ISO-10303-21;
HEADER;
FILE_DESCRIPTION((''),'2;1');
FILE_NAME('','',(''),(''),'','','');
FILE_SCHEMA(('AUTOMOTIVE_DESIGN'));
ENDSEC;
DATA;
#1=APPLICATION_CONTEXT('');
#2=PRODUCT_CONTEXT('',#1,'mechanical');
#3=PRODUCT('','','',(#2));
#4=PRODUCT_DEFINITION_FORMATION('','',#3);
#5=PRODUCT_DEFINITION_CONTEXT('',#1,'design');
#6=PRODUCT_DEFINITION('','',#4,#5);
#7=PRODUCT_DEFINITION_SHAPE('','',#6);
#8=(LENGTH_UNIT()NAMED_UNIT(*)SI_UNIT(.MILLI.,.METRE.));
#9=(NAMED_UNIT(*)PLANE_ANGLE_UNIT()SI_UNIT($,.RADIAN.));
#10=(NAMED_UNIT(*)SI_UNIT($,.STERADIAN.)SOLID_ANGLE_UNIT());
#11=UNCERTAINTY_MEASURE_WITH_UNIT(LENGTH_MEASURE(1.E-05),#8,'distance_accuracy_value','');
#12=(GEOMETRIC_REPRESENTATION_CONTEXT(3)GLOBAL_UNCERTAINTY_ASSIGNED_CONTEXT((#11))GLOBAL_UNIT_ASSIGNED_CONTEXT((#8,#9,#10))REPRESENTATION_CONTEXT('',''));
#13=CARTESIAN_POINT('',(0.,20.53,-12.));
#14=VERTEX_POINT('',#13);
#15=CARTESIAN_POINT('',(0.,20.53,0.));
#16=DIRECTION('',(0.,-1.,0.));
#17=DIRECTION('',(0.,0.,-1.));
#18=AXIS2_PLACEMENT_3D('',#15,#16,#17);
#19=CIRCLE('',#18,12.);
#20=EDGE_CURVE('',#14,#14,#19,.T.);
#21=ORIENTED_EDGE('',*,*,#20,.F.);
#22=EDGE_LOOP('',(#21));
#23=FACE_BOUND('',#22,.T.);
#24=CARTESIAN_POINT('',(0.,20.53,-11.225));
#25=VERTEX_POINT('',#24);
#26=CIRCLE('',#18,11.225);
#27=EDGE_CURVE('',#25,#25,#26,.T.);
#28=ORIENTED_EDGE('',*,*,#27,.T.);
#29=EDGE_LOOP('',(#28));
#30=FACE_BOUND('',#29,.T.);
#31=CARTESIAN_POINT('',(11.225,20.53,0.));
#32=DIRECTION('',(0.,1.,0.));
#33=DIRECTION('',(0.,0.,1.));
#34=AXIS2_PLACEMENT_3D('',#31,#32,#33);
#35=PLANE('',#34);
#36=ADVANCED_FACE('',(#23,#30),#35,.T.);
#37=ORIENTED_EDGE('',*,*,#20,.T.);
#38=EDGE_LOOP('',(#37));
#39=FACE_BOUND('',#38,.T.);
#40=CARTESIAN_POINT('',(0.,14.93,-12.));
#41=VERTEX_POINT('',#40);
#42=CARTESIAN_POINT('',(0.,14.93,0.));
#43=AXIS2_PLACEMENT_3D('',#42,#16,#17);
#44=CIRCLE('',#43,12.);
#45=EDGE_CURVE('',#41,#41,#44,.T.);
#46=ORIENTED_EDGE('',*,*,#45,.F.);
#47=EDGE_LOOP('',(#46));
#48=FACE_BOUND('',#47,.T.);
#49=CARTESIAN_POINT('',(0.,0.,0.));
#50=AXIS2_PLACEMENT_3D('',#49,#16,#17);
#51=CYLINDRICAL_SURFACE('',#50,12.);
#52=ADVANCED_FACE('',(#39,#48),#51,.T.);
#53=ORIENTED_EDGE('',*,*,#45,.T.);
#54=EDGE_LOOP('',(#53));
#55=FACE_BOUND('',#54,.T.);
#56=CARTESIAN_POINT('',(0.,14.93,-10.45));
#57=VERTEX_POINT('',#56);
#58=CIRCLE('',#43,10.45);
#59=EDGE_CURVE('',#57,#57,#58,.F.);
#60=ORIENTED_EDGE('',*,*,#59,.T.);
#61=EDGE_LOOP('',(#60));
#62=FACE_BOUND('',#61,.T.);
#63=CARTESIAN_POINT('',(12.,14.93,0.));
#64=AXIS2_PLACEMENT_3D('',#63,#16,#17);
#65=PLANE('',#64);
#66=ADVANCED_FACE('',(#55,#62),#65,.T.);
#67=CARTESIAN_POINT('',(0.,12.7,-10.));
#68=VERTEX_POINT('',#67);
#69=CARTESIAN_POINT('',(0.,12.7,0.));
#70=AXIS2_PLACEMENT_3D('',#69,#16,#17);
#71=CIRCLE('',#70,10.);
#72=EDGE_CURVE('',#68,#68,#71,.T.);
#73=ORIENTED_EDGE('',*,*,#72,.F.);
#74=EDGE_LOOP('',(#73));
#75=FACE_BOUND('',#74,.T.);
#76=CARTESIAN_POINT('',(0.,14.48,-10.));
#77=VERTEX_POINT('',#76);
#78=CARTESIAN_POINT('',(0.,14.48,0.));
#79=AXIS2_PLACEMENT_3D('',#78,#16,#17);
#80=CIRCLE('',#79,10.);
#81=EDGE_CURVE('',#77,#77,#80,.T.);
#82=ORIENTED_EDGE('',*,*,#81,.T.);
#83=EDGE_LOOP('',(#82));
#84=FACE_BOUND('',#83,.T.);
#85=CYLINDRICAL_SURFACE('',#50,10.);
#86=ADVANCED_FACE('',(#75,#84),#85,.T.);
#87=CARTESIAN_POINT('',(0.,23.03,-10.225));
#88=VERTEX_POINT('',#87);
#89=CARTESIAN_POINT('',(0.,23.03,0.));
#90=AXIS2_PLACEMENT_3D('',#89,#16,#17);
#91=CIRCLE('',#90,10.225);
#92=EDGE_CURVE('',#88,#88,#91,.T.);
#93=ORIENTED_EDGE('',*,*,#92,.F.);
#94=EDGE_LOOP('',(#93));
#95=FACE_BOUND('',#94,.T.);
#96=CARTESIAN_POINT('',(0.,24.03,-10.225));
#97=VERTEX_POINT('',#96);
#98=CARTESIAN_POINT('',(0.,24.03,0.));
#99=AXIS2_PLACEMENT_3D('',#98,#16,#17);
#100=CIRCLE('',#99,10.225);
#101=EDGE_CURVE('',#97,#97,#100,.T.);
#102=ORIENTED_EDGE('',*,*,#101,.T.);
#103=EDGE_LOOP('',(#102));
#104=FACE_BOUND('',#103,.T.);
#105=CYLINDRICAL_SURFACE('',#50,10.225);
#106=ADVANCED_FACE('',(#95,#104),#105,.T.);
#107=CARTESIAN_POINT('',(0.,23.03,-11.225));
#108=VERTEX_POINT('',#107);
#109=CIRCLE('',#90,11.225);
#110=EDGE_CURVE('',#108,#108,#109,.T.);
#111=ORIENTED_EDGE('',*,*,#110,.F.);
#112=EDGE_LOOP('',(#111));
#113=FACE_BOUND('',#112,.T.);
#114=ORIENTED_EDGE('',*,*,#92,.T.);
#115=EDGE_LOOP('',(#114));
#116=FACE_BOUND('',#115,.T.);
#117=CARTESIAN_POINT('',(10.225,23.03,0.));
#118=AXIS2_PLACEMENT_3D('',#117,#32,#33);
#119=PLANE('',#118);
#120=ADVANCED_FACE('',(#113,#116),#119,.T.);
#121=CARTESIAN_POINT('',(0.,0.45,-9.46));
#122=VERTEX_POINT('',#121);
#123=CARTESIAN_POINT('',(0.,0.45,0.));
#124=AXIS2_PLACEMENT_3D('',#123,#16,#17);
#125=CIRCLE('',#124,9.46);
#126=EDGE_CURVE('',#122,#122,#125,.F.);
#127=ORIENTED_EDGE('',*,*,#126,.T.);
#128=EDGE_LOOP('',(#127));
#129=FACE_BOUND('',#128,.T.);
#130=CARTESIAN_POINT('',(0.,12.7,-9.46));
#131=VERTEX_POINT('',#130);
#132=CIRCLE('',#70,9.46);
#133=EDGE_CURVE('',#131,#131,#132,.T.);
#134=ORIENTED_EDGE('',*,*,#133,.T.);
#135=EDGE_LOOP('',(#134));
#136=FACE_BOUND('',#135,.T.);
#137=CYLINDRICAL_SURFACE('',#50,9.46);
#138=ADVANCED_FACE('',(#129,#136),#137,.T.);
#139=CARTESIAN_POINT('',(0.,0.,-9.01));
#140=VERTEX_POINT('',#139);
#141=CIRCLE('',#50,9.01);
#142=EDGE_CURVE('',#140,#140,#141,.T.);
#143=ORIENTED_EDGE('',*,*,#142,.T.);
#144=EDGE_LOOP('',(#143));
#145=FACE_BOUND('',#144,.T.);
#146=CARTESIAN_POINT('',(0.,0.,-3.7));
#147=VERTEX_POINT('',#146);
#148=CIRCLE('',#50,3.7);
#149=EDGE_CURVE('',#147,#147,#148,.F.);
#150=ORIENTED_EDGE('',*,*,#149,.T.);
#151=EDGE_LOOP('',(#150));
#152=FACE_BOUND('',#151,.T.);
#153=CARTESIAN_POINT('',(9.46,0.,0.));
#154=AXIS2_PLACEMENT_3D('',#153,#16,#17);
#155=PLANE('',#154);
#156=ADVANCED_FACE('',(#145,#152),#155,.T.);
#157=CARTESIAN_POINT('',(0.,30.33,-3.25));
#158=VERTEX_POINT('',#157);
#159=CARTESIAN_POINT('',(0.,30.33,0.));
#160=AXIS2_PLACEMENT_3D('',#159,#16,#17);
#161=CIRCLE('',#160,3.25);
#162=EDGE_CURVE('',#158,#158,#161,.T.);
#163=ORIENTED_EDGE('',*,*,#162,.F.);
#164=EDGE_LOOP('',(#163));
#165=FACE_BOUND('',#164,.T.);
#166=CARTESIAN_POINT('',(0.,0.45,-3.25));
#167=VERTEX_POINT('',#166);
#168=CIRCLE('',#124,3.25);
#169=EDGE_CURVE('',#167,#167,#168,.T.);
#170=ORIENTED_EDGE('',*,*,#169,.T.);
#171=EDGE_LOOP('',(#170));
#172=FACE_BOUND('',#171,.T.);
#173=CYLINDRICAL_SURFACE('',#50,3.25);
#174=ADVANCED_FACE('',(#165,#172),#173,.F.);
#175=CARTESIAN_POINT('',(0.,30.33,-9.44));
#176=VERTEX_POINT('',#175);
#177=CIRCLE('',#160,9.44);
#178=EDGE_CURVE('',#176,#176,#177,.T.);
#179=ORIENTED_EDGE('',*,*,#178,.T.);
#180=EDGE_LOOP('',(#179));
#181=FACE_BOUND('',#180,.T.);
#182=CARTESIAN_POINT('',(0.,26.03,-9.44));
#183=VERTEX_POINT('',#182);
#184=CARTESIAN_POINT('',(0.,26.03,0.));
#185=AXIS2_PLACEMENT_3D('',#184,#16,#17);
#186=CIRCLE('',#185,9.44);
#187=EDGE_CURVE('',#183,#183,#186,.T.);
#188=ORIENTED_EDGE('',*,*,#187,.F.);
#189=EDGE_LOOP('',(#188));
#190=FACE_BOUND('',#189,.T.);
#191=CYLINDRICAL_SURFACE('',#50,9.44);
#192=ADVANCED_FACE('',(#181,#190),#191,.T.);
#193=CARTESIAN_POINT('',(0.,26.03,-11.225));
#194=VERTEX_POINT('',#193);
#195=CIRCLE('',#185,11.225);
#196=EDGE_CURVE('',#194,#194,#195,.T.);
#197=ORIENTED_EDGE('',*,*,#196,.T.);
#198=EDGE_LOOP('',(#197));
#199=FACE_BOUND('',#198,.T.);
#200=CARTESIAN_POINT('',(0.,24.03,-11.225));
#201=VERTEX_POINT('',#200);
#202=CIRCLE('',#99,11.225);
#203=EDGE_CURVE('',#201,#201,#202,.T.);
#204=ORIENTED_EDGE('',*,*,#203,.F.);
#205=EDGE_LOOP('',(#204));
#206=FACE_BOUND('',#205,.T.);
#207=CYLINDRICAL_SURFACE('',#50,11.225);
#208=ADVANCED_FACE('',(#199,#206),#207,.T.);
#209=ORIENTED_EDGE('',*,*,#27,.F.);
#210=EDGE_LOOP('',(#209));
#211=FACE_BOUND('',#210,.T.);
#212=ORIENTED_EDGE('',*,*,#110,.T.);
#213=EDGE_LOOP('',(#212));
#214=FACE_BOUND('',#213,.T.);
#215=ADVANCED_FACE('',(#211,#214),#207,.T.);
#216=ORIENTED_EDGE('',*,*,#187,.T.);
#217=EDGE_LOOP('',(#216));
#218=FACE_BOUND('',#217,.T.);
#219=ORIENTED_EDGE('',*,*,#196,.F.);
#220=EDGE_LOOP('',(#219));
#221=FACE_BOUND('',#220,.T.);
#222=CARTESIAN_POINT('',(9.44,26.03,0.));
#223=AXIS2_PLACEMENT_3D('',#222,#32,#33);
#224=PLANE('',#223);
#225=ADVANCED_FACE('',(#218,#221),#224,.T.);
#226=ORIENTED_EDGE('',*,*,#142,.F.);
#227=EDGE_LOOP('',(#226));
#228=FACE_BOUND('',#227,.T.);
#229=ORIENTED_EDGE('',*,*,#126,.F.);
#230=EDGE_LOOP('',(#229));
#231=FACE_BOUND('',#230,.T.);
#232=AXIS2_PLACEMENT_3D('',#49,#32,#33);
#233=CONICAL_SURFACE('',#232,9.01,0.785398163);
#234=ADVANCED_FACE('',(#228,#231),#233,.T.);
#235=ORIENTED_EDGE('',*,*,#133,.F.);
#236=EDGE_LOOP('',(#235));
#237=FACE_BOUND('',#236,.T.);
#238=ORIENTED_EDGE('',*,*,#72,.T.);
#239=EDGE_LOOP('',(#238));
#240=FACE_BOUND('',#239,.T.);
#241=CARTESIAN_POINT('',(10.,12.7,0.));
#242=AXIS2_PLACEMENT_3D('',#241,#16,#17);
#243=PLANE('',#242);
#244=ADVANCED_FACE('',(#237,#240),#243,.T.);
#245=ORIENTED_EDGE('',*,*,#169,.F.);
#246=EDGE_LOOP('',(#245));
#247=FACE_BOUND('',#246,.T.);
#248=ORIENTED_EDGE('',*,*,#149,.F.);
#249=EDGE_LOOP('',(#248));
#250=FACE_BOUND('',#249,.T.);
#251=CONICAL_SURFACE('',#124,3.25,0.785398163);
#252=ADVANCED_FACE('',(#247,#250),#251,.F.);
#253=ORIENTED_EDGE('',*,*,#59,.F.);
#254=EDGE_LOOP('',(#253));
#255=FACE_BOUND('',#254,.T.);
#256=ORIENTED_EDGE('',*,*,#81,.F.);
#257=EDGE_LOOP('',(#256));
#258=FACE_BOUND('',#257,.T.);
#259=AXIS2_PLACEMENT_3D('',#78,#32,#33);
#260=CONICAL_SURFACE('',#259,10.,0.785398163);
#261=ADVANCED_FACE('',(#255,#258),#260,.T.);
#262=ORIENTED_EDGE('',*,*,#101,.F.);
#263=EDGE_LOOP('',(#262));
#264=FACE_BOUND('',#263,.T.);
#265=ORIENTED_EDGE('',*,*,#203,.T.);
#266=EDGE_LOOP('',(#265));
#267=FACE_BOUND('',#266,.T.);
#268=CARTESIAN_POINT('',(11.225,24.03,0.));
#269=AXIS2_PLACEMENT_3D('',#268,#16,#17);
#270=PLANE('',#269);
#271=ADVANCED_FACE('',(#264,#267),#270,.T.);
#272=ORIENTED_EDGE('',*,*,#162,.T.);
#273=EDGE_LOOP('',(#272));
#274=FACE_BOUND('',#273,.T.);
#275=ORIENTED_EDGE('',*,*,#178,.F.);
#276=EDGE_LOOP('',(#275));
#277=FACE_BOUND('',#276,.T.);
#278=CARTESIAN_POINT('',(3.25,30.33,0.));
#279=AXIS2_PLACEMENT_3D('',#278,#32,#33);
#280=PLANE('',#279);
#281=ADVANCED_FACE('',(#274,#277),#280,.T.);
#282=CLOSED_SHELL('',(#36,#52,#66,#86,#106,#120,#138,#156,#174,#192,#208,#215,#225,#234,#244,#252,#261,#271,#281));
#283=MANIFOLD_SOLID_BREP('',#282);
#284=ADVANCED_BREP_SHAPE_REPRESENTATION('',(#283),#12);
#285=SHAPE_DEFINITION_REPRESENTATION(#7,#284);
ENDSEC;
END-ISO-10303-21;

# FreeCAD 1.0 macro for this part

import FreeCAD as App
import Part
import Sketcher
from FreeCAD import Vector


def edges_at(feature, points):
    """Names of the edges that pass closest to the given points."""
    edges = feature.Shape.Edges
    near = lambda p: min(range(len(edges)), key=lambda i: edges[i].distToShape(Part.Vertex(*p))[0])
    return sorted({f"Edge{near(p) + 1}" for p in points})

doc = App.newDocument("Part")
body = doc.addObject("PartDesign::Body", "Body")

# Sketch on XY plane
sketch1 = body.newObject("Sketcher::SketchObject", "Sketch")
sketch1.AttachmentSupport = (doc.getObject("XY_Plane"), [""])
sketch1.MapMode = "FlatFace"
sketch1.addGeometry(Part.LineSegment(Vector(3.2, 30.3, 0), Vector(3.2, 0, 0)), False)
sketch1.addGeometry(Part.LineSegment(Vector(3.2, 0, 0), Vector(9.5, 0, 0)), False)
sketch1.addGeometry(Part.LineSegment(Vector(9.5, 0, 0), Vector(9.5, 12.7, 0)), False)
sketch1.addGeometry(Part.LineSegment(Vector(9.5, 12.7, 0), Vector(10, 12.7, 0)), False)
sketch1.addGeometry(Part.LineSegment(Vector(10, 12.7, 0), Vector(10, 14.9, 0)), False)
sketch1.addGeometry(Part.LineSegment(Vector(10, 14.9, 0), Vector(12, 14.9, 0)), False)
sketch1.addGeometry(Part.LineSegment(Vector(12, 14.9, 0), Vector(12, 20.5, 0)), False)
sketch1.addGeometry(Part.LineSegment(Vector(12, 20.5, 0), Vector(11.2, 20.5, 0)), False)
sketch1.addGeometry(Part.LineSegment(Vector(11.2, 20.5, 0), Vector(11.2, 23, 0)), False)
sketch1.addGeometry(Part.LineSegment(Vector(11.2, 23, 0), Vector(10.2, 23, 0)), False)
sketch1.addGeometry(Part.LineSegment(Vector(10.2, 23, 0), Vector(10.2, 24, 0)), False)
sketch1.addGeometry(Part.LineSegment(Vector(10.2, 24, 0), Vector(11.2, 24, 0)), False)
sketch1.addGeometry(Part.LineSegment(Vector(11.2, 24, 0), Vector(11.2, 26, 0)), False)
sketch1.addGeometry(Part.LineSegment(Vector(11.2, 26, 0), Vector(9.4, 26, 0)), False)
sketch1.addGeometry(Part.LineSegment(Vector(9.4, 26, 0), Vector(9.4, 30.3, 0)), False)
sketch1.addGeometry(Part.LineSegment(Vector(9.4, 30.3, 0), Vector(3.2, 30.3, 0)), False)
sketch1.addConstraint(Sketcher.Constraint("Coincident", 0, 2, 1, 1))
sketch1.addConstraint(Sketcher.Constraint("Coincident", 1, 2, 2, 1))
sketch1.addConstraint(Sketcher.Constraint("Coincident", 2, 2, 3, 1))
sketch1.addConstraint(Sketcher.Constraint("Coincident", 3, 2, 4, 1))
sketch1.addConstraint(Sketcher.Constraint("Coincident", 4, 2, 5, 1))
sketch1.addConstraint(Sketcher.Constraint("Coincident", 5, 2, 6, 1))
sketch1.addConstraint(Sketcher.Constraint("Coincident", 6, 2, 7, 1))
sketch1.addConstraint(Sketcher.Constraint("Coincident", 7, 2, 8, 1))
sketch1.addConstraint(Sketcher.Constraint("Coincident", 8, 2, 9, 1))
sketch1.addConstraint(Sketcher.Constraint("Coincident", 9, 2, 10, 1))
sketch1.addConstraint(Sketcher.Constraint("Coincident", 10, 2, 11, 1))
sketch1.addConstraint(Sketcher.Constraint("Coincident", 11, 2, 12, 1))
sketch1.addConstraint(Sketcher.Constraint("Coincident", 12, 2, 13, 1))
sketch1.addConstraint(Sketcher.Constraint("Coincident", 13, 2, 14, 1))
sketch1.addConstraint(Sketcher.Constraint("Coincident", 14, 2, 15, 1))
sketch1.addConstraint(Sketcher.Constraint("Coincident", 15, 2, 0, 1))
sketch1.addConstraint(Sketcher.Constraint("Vertical", 0))
sketch1.addConstraint(Sketcher.Constraint("Horizontal", 1))
sketch1.addConstraint(Sketcher.Constraint("Vertical", 2))
sketch1.addConstraint(Sketcher.Constraint("Horizontal", 3))
sketch1.addConstraint(Sketcher.Constraint("Vertical", 4))
sketch1.addConstraint(Sketcher.Constraint("Horizontal", 5))
sketch1.addConstraint(Sketcher.Constraint("Vertical", 6))
sketch1.addConstraint(Sketcher.Constraint("Horizontal", 7))
sketch1.addConstraint(Sketcher.Constraint("Vertical", 8))
sketch1.addConstraint(Sketcher.Constraint("Horizontal", 9))
sketch1.addConstraint(Sketcher.Constraint("Vertical", 10))
sketch1.addConstraint(Sketcher.Constraint("Horizontal", 11))
sketch1.addConstraint(Sketcher.Constraint("Vertical", 12))
sketch1.addConstraint(Sketcher.Constraint("Horizontal", 13))
sketch1.addConstraint(Sketcher.Constraint("Vertical", 14))
sketch1.addConstraint(Sketcher.Constraint("Horizontal", 15))
sketch1.addConstraint(Sketcher.Constraint("PointOnObject", 0, 2, -1))
sketch1.addConstraint(Sketcher.Constraint("Vertical", 8, 2, 11, 2))
sketch1.addConstraint(Sketcher.Constraint("Equal", 11, 10))
sketch1.addConstraint(Sketcher.Constraint("Equal", 5, 12))
sketch1.addConstraint(Sketcher.Constraint("DistanceX", 5, 1, 5, 2, 2.0))
sketch1.addConstraint(Sketcher.Constraint("DistanceX", 9, 2, 9, 1, 1.0))
sketch1.addConstraint(Sketcher.Constraint("DistanceY", 2, 1, 2, 2, 12.7))
sketch1.addConstraint(Sketcher.Constraint("DistanceY", 6, 1, 6, 2, 5.6))
sketch1.addConstraint(Sketcher.Constraint("DistanceY", 8, 1, 8, 2, 2.5))
sketch1.addConstraint(Sketcher.Constraint("DistanceY", 14, 1, 14, 2, 4.3))
sketch1.addConstraint(Sketcher.Constraint("DistanceX", -1, 1, 3, 2, 10.0))
sketch1.addConstraint(Sketcher.Constraint("DistanceX", 1, 1, 1, 2, 6.21))
sketch1.addConstraint(Sketcher.Constraint("DistanceX", 3, 1, 3, 2, 0.54))
sketch1.addConstraint(Sketcher.Constraint("DistanceX", 15, 2, 15, 1, 6.19))
sketch1.addConstraint(Sketcher.Constraint("DistanceY", 0, 2, 0, 1, 30.33))
sketch1.addConstraint(Sketcher.Constraint("DistanceX", 7, 2, 7, 1, 0.775))
revolution = body.newObject("PartDesign::Revolution", "Revolution")
revolution.Profile = sketch1
revolution.ReferenceAxis = (sketch1, ["V_Axis"])
revolution.Angle = 360
doc.recompute()

chamfer = body.newObject("PartDesign::Chamfer", "Chamfer")
chamfer.Base = (revolution, edges_at(revolution, [(-9.46, 0, 0), (-10, 14.93, 0), (-3.25, 0, 0)]))
chamfer.Size = 0.45

doc.recompute()
